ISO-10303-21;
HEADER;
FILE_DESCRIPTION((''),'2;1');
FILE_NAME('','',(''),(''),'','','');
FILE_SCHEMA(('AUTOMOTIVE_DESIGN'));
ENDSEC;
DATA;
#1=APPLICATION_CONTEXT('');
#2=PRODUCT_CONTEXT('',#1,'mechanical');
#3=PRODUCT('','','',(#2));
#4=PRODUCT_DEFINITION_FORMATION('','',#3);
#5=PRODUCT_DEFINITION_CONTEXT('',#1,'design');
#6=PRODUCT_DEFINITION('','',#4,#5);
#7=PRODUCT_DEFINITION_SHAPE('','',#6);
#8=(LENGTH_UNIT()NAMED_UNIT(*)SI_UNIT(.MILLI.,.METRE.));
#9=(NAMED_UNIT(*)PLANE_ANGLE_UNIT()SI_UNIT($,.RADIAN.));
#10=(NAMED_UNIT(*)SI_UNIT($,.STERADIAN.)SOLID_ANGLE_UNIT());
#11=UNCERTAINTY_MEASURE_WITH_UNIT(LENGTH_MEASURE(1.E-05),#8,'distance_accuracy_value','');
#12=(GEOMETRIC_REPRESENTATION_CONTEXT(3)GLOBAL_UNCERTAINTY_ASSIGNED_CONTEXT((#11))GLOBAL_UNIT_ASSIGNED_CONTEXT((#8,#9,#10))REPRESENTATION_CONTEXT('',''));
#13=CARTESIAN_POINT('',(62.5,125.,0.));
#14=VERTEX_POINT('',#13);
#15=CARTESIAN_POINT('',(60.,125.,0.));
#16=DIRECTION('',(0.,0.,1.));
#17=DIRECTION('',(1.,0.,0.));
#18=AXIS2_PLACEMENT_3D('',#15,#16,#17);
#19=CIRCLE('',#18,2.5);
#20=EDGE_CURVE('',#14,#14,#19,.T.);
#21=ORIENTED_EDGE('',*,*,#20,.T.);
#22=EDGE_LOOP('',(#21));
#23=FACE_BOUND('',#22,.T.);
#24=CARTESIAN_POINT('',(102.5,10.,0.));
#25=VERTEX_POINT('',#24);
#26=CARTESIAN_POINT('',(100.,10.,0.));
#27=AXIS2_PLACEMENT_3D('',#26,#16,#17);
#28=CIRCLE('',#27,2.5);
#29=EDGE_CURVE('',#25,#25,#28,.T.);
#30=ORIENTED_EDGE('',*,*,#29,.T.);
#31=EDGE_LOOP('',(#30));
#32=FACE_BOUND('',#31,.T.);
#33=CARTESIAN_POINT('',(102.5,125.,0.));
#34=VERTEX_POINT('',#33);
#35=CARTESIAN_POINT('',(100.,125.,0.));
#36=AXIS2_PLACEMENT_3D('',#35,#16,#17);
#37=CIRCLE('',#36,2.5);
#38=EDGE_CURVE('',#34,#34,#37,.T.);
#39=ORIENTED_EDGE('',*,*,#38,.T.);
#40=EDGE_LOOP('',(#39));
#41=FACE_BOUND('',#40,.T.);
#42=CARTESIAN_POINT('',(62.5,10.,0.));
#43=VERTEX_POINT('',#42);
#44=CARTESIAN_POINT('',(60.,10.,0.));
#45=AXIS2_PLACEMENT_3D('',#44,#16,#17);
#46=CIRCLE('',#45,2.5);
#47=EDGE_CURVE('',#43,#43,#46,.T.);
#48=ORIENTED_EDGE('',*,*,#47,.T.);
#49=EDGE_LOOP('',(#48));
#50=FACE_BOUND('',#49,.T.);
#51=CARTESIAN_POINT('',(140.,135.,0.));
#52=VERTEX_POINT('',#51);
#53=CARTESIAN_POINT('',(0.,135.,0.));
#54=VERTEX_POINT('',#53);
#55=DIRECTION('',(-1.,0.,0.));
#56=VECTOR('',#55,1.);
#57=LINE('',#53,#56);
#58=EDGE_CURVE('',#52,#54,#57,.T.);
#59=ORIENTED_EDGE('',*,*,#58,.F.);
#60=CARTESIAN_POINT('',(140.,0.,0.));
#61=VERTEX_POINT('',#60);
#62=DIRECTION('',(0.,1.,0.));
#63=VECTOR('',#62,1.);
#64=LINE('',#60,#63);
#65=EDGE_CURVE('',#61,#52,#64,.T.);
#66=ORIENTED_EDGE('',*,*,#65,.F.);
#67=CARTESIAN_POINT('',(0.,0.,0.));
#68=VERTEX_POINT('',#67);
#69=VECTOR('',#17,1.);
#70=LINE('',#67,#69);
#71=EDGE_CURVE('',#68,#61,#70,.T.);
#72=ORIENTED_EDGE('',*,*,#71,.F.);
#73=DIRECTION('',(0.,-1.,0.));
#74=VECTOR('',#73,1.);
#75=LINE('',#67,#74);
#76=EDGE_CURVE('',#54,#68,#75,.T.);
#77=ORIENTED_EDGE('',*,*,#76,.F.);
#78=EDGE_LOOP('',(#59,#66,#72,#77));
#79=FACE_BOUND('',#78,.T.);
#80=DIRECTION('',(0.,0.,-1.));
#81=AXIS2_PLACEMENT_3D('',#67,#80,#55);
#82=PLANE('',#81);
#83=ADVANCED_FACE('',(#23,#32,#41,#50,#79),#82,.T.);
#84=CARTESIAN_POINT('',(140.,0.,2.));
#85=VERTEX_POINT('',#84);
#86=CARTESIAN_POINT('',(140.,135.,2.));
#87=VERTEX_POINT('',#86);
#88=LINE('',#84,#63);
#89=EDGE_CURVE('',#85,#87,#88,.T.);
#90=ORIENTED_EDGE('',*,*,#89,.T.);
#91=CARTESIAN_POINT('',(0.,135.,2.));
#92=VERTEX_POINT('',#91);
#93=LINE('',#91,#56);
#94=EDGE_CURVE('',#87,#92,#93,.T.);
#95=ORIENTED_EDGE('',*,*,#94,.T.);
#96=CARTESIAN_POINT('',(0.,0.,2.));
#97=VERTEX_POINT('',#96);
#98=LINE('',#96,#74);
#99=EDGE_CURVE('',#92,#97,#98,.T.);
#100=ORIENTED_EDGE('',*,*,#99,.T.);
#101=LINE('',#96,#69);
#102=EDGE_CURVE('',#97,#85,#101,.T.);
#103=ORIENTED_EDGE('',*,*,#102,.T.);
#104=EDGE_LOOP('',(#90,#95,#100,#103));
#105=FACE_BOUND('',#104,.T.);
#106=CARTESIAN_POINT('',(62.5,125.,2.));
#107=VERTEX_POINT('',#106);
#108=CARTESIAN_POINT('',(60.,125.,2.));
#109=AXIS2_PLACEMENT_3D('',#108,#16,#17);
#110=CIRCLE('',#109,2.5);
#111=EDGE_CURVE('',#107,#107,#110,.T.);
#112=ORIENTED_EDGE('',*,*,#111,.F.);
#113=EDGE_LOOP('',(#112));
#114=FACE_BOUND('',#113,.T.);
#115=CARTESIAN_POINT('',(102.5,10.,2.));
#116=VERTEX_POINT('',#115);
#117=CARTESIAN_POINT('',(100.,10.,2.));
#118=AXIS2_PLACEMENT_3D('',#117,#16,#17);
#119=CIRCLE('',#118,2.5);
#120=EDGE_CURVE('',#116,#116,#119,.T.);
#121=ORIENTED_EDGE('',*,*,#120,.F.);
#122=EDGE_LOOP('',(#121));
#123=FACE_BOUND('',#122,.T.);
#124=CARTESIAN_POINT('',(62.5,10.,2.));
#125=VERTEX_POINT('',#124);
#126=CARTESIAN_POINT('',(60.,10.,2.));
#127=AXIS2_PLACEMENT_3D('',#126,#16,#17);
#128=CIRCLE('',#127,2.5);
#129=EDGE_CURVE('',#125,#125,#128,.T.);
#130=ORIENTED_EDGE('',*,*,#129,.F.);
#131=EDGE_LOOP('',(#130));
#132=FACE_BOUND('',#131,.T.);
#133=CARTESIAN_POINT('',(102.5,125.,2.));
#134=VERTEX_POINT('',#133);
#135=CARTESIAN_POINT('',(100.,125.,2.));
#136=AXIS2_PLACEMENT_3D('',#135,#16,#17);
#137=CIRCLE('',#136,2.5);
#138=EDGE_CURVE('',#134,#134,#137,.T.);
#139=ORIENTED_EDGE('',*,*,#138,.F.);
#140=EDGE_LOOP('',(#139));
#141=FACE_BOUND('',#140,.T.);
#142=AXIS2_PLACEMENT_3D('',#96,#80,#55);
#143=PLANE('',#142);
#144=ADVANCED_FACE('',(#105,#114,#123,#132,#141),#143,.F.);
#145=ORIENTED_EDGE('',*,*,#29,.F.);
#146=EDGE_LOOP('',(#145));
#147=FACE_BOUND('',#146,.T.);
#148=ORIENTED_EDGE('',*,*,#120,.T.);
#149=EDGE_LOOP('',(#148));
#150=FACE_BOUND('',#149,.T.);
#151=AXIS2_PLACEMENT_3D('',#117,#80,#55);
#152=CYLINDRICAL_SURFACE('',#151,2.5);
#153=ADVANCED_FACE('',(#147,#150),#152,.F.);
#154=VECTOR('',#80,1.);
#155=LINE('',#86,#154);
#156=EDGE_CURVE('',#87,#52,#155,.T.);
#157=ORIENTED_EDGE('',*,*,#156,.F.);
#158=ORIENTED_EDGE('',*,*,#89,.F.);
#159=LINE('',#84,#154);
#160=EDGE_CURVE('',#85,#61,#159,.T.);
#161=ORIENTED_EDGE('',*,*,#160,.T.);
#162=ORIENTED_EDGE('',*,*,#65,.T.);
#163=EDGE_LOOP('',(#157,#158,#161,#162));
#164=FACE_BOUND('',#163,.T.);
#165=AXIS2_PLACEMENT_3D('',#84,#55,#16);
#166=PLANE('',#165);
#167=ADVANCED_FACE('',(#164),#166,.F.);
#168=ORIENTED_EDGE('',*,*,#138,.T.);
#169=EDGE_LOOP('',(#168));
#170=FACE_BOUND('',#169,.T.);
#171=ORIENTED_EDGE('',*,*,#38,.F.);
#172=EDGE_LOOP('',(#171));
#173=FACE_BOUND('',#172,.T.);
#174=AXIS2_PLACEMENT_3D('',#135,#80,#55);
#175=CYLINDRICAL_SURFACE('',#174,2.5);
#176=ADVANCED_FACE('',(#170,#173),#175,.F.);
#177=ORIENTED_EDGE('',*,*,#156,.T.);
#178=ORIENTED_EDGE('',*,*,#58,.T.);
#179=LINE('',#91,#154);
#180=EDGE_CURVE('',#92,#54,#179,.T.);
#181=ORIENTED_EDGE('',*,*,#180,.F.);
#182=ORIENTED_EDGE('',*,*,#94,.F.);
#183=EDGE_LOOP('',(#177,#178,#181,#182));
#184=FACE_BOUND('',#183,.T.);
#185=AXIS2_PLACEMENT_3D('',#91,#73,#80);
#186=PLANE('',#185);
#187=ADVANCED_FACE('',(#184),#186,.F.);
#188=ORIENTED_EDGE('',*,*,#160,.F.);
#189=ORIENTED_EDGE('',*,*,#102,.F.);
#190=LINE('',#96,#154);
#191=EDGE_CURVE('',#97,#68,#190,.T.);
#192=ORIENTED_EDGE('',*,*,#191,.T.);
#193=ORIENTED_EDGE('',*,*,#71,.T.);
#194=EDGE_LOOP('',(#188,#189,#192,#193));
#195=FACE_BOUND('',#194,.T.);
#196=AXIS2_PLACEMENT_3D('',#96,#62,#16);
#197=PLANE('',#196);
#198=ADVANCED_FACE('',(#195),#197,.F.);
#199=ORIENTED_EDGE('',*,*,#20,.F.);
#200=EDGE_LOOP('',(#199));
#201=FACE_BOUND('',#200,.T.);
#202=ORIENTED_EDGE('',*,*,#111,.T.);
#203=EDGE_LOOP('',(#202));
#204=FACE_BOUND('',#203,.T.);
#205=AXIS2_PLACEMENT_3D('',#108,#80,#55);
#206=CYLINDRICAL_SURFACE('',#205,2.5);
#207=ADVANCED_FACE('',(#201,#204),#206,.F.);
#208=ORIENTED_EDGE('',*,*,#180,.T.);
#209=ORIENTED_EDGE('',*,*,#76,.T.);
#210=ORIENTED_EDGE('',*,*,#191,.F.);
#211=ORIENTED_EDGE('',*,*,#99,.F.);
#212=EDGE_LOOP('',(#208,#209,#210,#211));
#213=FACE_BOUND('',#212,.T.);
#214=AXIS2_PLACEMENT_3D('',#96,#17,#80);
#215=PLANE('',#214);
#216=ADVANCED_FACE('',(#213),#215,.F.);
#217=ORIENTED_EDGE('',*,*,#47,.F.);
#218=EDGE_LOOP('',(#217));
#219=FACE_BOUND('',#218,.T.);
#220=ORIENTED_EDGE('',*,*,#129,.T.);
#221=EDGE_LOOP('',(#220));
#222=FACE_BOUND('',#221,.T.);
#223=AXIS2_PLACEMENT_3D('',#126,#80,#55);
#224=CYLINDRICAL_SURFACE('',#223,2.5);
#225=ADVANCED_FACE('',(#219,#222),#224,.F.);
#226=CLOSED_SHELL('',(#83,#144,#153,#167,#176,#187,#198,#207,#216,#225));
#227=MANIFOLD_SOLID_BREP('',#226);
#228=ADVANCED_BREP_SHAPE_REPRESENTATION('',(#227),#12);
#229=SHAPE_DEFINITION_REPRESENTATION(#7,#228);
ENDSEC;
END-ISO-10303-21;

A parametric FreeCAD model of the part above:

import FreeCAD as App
import Part
import Sketcher
Q = App.Units.Quantity


def add_polygon(sketch, points):
    """Adds a closed chain of lines whose ends are joined by coincident constraints."""
    first, n = sketch.GeometryCount, len(points)
    for a, b in zip(points, points[1:] + points[:1]):
        sketch.addGeometry(Part.LineSegment(App.Vector(*a, 0), App.Vector(*b, 0)), False)
    for i in range(n):
        sketch.addConstraint(Sketcher.Constraint("Coincident", first + i, 2, first + (i + 1) % n, 1))

doc = App.newDocument("Part")
params = doc.addObject("Spreadsheet::Sheet", "Params")
for row, (alias, value) in enumerate([
    ("sketch1_diameter", "5 mm"),
    ("sketch1_width", "140 mm"),
    ("sketch1_height", "135 mm"),
    ("pad1_length", "2 mm"),
], start=1):
    params.set(f"A{row}", alias)
    params.set(f"B{row}", "=" + value)
    params.setAlias(f"B{row}", alias)

body = doc.addObject("PartDesign::Body", "Body")

# Sketch on XY plane
sketch1 = doc.addObject("Sketcher::SketchObject", "Sketch")
body.addObject(sketch1)
sketch1.AttachmentSupport = (doc.XY_Plane, [""])
sketch1.MapMode = "FlatFace"
add_polygon(sketch1, [(0, 135), (0, 0), (140, 0), (140, 135)])  # lines 0-3
sketch1.addGeometry(Part.Circle(App.Vector(60, 10, 0), App.Vector(0, 0, 1), 2.5), False)  # 4
sketch1.addGeometry(Part.Circle(App.Vector(100, 10, 0), App.Vector(0, 0, 1), 2.5), False)  # 5
sketch1.addGeometry(Part.Circle(App.Vector(60, 125, 0), App.Vector(0, 0, 1), 2.5), False)  # 6
sketch1.addGeometry(Part.Circle(App.Vector(100, 125, 0), App.Vector(0, 0, 1), 2.5), False)  # 7
sketch1.addConstraint([
    Sketcher.Constraint("Vertical", 0),
    Sketcher.Constraint("Horizontal", 1),
    Sketcher.Constraint("Vertical", 2),
    Sketcher.Constraint("Horizontal", 3),
    Sketcher.Constraint("Coincident", 0, 2, -1, 1),
    Sketcher.Constraint("Equal", 4, 5),
    Sketcher.Constraint("Equal", 5, 6),
    Sketcher.Constraint("Equal", 6, 7),
    Sketcher.Constraint("Horizontal", 4, 3, 5, 3),
    Sketcher.Constraint("Horizontal", 6, 3, 7, 3),
    Sketcher.Constraint("Vertical", 4, 3, 6, 3),
    Sketcher.Constraint("Vertical", 5, 3, 7, 3),
    Sketcher.Constraint("Diameter", 4, Q("5 mm")),
    Sketcher.Constraint("DistanceX", 1, 1, 1, 2, Q("140 mm")),
    Sketcher.Constraint("DistanceY", 0, 2, 0, 1, Q("135 mm")),
    Sketcher.Constraint("DistanceX", -1, 1, 4, 3, Q("60 mm")),
    Sketcher.Constraint("DistanceY", -1, 1, 4, 3, Q("10 mm")),
    Sketcher.Constraint("DistanceX", -1, 1, 5, 3, Q("100 mm")),
    Sketcher.Constraint("DistanceY", -1, 1, 6, 3, Q("125 mm")),
])
sketch1.setExpression("Constraints[16]", "Params.sketch1_diameter")
sketch1.setExpression("Constraints[17]", "Params.sketch1_width")
sketch1.setExpression("Constraints[18]", "Params.sketch1_height")
pad1 = doc.addObject("PartDesign::Pad", "Pad")
body.addObject(pad1)
pad1.Profile = sketch1
pad1.setExpression("Length", "Params.pad1_length")

doc.recompute()
